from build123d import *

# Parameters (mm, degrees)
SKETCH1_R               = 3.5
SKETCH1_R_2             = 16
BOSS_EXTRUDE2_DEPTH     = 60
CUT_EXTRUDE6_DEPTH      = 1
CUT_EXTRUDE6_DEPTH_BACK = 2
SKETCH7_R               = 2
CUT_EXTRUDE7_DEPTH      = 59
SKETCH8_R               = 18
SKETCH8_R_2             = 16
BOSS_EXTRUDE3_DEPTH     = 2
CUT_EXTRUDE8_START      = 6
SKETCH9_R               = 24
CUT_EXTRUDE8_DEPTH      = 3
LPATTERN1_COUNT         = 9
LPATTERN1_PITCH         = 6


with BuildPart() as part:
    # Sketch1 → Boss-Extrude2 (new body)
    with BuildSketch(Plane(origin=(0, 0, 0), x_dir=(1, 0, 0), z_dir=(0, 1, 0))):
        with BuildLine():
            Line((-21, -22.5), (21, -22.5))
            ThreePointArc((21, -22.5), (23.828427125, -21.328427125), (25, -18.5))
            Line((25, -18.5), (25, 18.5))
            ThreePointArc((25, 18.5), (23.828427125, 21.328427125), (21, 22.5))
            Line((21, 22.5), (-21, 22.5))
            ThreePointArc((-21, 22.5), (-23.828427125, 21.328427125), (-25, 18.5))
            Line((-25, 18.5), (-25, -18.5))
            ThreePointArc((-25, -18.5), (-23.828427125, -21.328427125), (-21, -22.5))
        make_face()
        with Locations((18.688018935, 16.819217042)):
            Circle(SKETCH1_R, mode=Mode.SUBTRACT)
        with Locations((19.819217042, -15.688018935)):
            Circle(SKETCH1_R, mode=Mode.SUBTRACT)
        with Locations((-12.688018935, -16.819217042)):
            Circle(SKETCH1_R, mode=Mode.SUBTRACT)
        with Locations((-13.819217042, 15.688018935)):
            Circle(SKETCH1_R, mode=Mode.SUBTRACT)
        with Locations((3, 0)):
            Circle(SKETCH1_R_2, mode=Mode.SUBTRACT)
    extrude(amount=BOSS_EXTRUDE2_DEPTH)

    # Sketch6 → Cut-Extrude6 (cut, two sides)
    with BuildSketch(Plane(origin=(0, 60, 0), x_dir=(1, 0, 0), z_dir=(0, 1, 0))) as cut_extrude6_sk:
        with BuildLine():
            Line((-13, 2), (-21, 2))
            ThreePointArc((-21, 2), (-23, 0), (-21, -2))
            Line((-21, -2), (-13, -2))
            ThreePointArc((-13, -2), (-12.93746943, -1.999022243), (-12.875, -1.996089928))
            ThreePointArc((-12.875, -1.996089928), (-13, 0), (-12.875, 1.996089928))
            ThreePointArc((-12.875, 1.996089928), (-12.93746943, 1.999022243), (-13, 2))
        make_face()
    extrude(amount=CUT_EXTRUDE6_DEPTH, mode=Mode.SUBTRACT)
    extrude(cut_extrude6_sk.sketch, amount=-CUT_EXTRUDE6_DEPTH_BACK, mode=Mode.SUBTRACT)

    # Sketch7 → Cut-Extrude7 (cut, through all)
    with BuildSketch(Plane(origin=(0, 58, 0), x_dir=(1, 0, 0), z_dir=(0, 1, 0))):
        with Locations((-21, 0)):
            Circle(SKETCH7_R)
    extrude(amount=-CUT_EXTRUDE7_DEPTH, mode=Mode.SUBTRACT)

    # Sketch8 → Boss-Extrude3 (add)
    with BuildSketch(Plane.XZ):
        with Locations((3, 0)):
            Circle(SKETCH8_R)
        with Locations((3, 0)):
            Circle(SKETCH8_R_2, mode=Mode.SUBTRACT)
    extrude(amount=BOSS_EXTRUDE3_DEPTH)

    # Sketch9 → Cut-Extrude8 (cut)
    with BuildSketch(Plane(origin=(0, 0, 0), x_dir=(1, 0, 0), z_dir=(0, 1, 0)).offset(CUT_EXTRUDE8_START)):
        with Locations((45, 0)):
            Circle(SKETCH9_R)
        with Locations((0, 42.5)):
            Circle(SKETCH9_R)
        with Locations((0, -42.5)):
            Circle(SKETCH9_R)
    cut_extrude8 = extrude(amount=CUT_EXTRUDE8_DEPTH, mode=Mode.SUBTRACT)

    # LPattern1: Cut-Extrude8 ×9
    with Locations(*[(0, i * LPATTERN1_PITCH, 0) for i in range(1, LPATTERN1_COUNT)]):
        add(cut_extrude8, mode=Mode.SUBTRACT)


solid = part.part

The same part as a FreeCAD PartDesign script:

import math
import FreeCAD as App
import Part
import Sketcher
from FreeCAD import Vector
Q = App.Units.Quantity

doc = App.newDocument("Part")
params = doc.addObject("Spreadsheet::Sheet", "Params")
for row, (alias, value) in enumerate([
    ("sketch1_diameter", "7 mm"),
    ("sketch1_diameter2", "32 mm"),
    ("sketch1_radius", "4 mm"),
    ("sketch1_width", "42 mm"),
    ("sketch1_height", "37 mm"),
    ("pad1_length", "60 mm"),
    ("sketch2_radius", "2 mm"),
    ("sketch2_radius2", "16 mm"),
    ("sketch2_width", "8 mm"),
    ("pocket1_length", "1 mm"),
    ("pocket1_length2", "2 mm"),
    ("sketch3_diameter", "4 mm"),
    ("sketch4_diameter", "36 mm"),
    ("sketch4_diameter2", "32 mm"),
    ("pad2_length", "2 mm"),
    ("sketch5_diameter", "48 mm"),
    ("pocket3_length", "3 mm"),
    ("linearpattern_pitch", "6 mm"),
], start=1):
    params.set(f"A{row}", alias)
    params.set(f"B{row}", "=" + value)
    params.setAlias(f"B{row}", alias)

body = doc.addObject("PartDesign::Body", "Body")

# Sketch on XZ plane
sketch1 = body.newObject("Sketcher::SketchObject", "Sketch")
sketch1.AttachmentSupport = (doc.getObject("XZ_Plane"), [""])
sketch1.MapMode = "FlatFace"
sketch1.addGeometry(Part.LineSegment(Vector(-21, 22.5, 0), Vector(21, 22.5, 0)), False)
sketch1.addGeometry(Part.ArcOfCircle(Part.Circle(Vector(21, 18.5, 0), Vector(0, 0, 1), 4), math.radians(0), math.radians(90)), False)
sketch1.addGeometry(Part.LineSegment(Vector(25, 18.5, 0), Vector(25, -18.5, 0)), False)
sketch1.addGeometry(Part.ArcOfCircle(Part.Circle(Vector(21, -18.5, 0), Vector(0, 0, 1), 4), math.radians(-90), math.radians(0)), False)
sketch1.addGeometry(Part.LineSegment(Vector(21, -22.5, 0), Vector(-21, -22.5, 0)), False)
sketch1.addGeometry(Part.ArcOfCircle(Part.Circle(Vector(-21, -18.5, 0), Vector(0, 0, 1), 4), math.radians(180), math.radians(270)), False)
sketch1.addGeometry(Part.LineSegment(Vector(-25, -18.5, 0), Vector(-25, 18.5, 0)), False)
sketch1.addGeometry(Part.ArcOfCircle(Part.Circle(Vector(-21, 18.5, 0), Vector(0, 0, 1), 4), math.radians(90), math.radians(180)), False)
sketch1.addGeometry(Part.Circle(Vector(-12.688019, 16.819217, 0), Vector(0, 0, 1), 3.5), False)
sketch1.addGeometry(Part.Circle(Vector(19.819217, 15.688019, 0), Vector(0, 0, 1), 3.5), False)
sketch1.addGeometry(Part.Circle(Vector(-13.819217, -15.688019, 0), Vector(0, 0, 1), 3.5), False)
sketch1.addGeometry(Part.Circle(Vector(3, 0, 0), Vector(0, 0, 1), 16), False)
sketch1.addGeometry(Part.Circle(Vector(18.688019, -16.819217, 0), Vector(0, 0, 1), 3.5), False)
sketch1.addConstraint(Sketcher.Constraint("Tangent", 0, 2, 1, 2))
sketch1.addConstraint(Sketcher.Constraint("Tangent", 1, 1, 2, 1))
sketch1.addConstraint(Sketcher.Constraint("Tangent", 2, 2, 3, 2))
sketch1.addConstraint(Sketcher.Constraint("Tangent", 3, 1, 4, 1))
sketch1.addConstraint(Sketcher.Constraint("Tangent", 4, 2, 5, 2))
sketch1.addConstraint(Sketcher.Constraint("Tangent", 5, 1, 6, 1))
sketch1.addConstraint(Sketcher.Constraint("Tangent", 6, 2, 7, 2))
sketch1.addConstraint(Sketcher.Constraint("Tangent", 7, 1, 0, 1))
sketch1.addConstraint(Sketcher.Constraint("Horizontal", 0))
sketch1.addConstraint(Sketcher.Constraint("Vertical", 2))
sketch1.addConstraint(Sketcher.Constraint("Horizontal", 4))
sketch1.addConstraint(Sketcher.Constraint("Vertical", 6))
sketch1.addConstraint(Sketcher.Constraint("Equal", 1, 3))
sketch1.addConstraint(Sketcher.Constraint("Equal", 3, 5))
sketch1.addConstraint(Sketcher.Constraint("Equal", 5, 7))
sketch1.addConstraint(Sketcher.Constraint("Equal", 8, 9))
sketch1.addConstraint(Sketcher.Constraint("Equal", 9, 10))
sketch1.addConstraint(Sketcher.Constraint("Equal", 10, 12))
sketch1.addConstraint(Sketcher.Constraint("Symmetric", 1, 3, 5, 3, -1, 1))
sketch1.addConstraint(Sketcher.Constraint("PointOnObject", 11, 3, -1))
sketch1.addConstraint(Sketcher.Constraint("Diameter", 8, Q("7 mm")))
sketch1.addConstraint(Sketcher.Constraint("Diameter", 11, Q("32 mm")))
sketch1.addConstraint(Sketcher.Constraint("Radius", 1, Q("4 mm")))
sketch1.addConstraint(Sketcher.Constraint("DistanceX", 0, 1, 0, 2, Q("42 mm")))
sketch1.addConstraint(Sketcher.Constraint("DistanceY", 2, 2, 2, 1, Q("37 mm")))
sketch1.addConstraint(Sketcher.Constraint("DistanceX", -1, 1, 11, 3, Q("3 mm")))
sketch1.addConstraint(Sketcher.Constraint("DistanceY", 9, 3, 8, 3, Q("1.131198 mm")))
sketch1.addConstraint(Sketcher.Constraint("DistanceX", 10, 3, 8, 3, Q("1.131198 mm")))
sketch1.addConstraint(Sketcher.Constraint("DistanceX", 12, 3, 9, 3, Q("1.131198 mm")))
sketch1.addConstraint(Sketcher.Constraint("DistanceY", 12, 3, 10, 3, Q("1.131198 mm")))
sketch1.addConstraint(Sketcher.Constraint("DistanceX", 8, 3, -1, 1, Q("12.688019 mm")))
sketch1.addConstraint(Sketcher.Constraint("DistanceY", -1, 1, 9, 3, Q("15.688019 mm")))
sketch1.addConstraint(Sketcher.Constraint("DistanceY", 10, 3, -1, 1, Q("15.688019 mm")))
sketch1.addConstraint(Sketcher.Constraint("DistanceX", -1, 1, 12, 3, Q("18.688019 mm")))
sketch1.setExpression("Constraints[20]", "Params.sketch1_diameter")
sketch1.setExpression("Constraints[21]", "Params.sketch1_diameter2")
sketch1.setExpression("Constraints[22]", "Params.sketch1_radius")
sketch1.setExpression("Constraints[23]", "Params.sketch1_width")
sketch1.setExpression("Constraints[24]", "Params.sketch1_height")
pad1 = body.newObject("PartDesign::Pad", "Pad")
pad1.Profile = sketch1
pad1.setExpression("Length", "Params.pad1_length")
pad1.Reversed = True

# Sketch on XZ plane
sketch2 = body.newObject("Sketcher::SketchObject", "Sketch001")
sketch2.AttachmentSupport = (doc.getObject("XZ_Plane"), [""])
sketch2.MapMode = "FlatFace"
sketch2.AttachmentOffset = App.Placement(Vector(0, 0, -60), App.Rotation())
sketch2.addGeometry(Part.LineSegment(Vector(-13, -2, 0), Vector(-21, -2, 0)), False)
sketch2.addGeometry(Part.ArcOfCircle(Part.Circle(Vector(-21, 0, 0), Vector(0, 0, 1), 2), math.radians(90), math.radians(270)), False)
sketch2.addGeometry(Part.LineSegment(Vector(-21, 2, 0), Vector(-13, 2, 0)), False)
sketch2.addGeometry(Part.ArcOfCircle(Part.Circle(Vector(-13, 0, 0), Vector(0, 0, 1), 2), math.radians(86.416678), math.radians(90)), False)
sketch2.addGeometry(Part.ArcOfCircle(Part.Circle(Vector(3, 0, 0), Vector(0, 0, 1), 16), math.radians(172.833357), math.radians(187.166643)), False)
sketch2.addGeometry(Part.ArcOfCircle(Part.Circle(Vector(-13, 0, 0), Vector(0, 0, 1), 2), math.radians(-90), math.radians(-86.416678)), False)
sketch2.addConstraint(Sketcher.Constraint("Tangent", 0, 2, 1, 2))
sketch2.addConstraint(Sketcher.Constraint("Tangent", 1, 1, 2, 1))
sketch2.addConstraint(Sketcher.Constraint("Tangent", 2, 2, 3, 2))
sketch2.addConstraint(Sketcher.Constraint("Coincident", 3, 1, 4, 1))
sketch2.addConstraint(Sketcher.Constraint("Coincident", 4, 2, 5, 2))
sketch2.addConstraint(Sketcher.Constraint("Tangent", 5, 1, 0, 1))
sketch2.addConstraint(Sketcher.Constraint("Horizontal", 0))
sketch2.addConstraint(Sketcher.Constraint("Horizontal", 2))
sketch2.addConstraint(Sketcher.Constraint("Coincident", 5, 3, 3, 3))
sketch2.addConstraint(Sketcher.Constraint("Equal", 1, 3))
sketch2.addConstraint(Sketcher.Constraint("Symmetric", 3, 1, 4, 2, -1))
sketch2.addConstraint(Sketcher.Constraint("Radius", 1, Q("2 mm")))
sketch2.addConstraint(Sketcher.Constraint("Radius", 4, Q("16 mm")))
sketch2.addConstraint(Sketcher.Constraint("DistanceX", 0, 2, 0, 1, Q("8 mm")))
sketch2.addConstraint(Sketcher.Constraint("DistanceX", 1, 3, -1, 1, Q("21 mm")))
sketch2.addConstraint(Sketcher.Constraint("DistanceX", -1, 1, 4, 3, Q("3 mm")))
sketch2.setExpression("Constraints[11]", "Params.sketch2_radius")
sketch2.setExpression("Constraints[12]", "Params.sketch2_radius2")
sketch2.setExpression("Constraints[13]", "Params.sketch2_width")
pocket1 = body.newObject("PartDesign::Pocket", "Pocket")
pocket1.Profile = sketch2
pocket1.Type = "TwoLengths"
pocket1.setExpression("Length", "Params.pocket1_length")
pocket1.setExpression("Length2", "Params.pocket1_length2")

# Sketch on XZ plane
sketch3 = body.newObject("Sketcher::SketchObject", "Sketch002")
sketch3.AttachmentSupport = (doc.getObject("XZ_Plane"), [""])
sketch3.MapMode = "FlatFace"
sketch3.AttachmentOffset = App.Placement(Vector(0, 0, -58), App.Rotation())
sketch3.addGeometry(Part.Circle(Vector(-21, 0, 0), Vector(0, 0, 1), 2), False)
sketch3.addConstraint(Sketcher.Constraint("PointOnObject", 0, 3, -1))
sketch3.addConstraint(Sketcher.Constraint("Diameter", 0, Q("4 mm")))
sketch3.addConstraint(Sketcher.Constraint("DistanceX", 0, 3, -1, 1, Q("21 mm")))
sketch3.setExpression("Constraints[1]", "Params.sketch3_diameter")
pocket2 = body.newObject("PartDesign::Pocket", "Pocket001")
pocket2.Profile = sketch3
pocket2.Type = "ThroughAll"
pocket2.Reversed = True

# Sketch on XZ plane
sketch4 = body.newObject("Sketcher::SketchObject", "Sketch003")
sketch4.AttachmentSupport = (doc.getObject("XZ_Plane"), [""])
sketch4.MapMode = "FlatFace"
sketch4.addGeometry(Part.Circle(Vector(3, 0, 0), Vector(0, 0, 1), 18), False)
sketch4.addGeometry(Part.Circle(Vector(3, 0, 0), Vector(0, 0, 1), 16), False)
sketch4.addConstraint(Sketcher.Constraint("Coincident", 1, 3, 0, 3))
sketch4.addConstraint(Sketcher.Constraint("PointOnObject", 0, 3, -1))
sketch4.addConstraint(Sketcher.Constraint("Diameter", 0, Q("36 mm")))
sketch4.addConstraint(Sketcher.Constraint("Diameter", 1, Q("32 mm")))
sketch4.addConstraint(Sketcher.Constraint("DistanceX", -1, 1, 0, 3, Q("3 mm")))
sketch4.setExpression("Constraints[2]", "Params.sketch4_diameter")
sketch4.setExpression("Constraints[3]", "Params.sketch4_diameter2")
pad2 = body.newObject("PartDesign::Pad", "Pad001")
pad2.Profile = sketch4
pad2.setExpression("Length", "Params.pad2_length")

# Sketch on XZ plane
sketch5 = body.newObject("Sketcher::SketchObject", "Sketch004")
sketch5.AttachmentSupport = (doc.getObject("XZ_Plane"), [""])
sketch5.MapMode = "FlatFace"
sketch5.AttachmentOffset = App.Placement(Vector(0, 0, -6), App.Rotation())
sketch5.addGeometry(Part.Circle(Vector(45, 0, 0), Vector(0, 0, 1), 24), False)
sketch5.addGeometry(Part.Circle(Vector(0, -42.5, 0), Vector(0, 0, 1), 24), False)
sketch5.addGeometry(Part.Circle(Vector(0, 42.5, 0), Vector(0, 0, 1), 24), False)
sketch5.addConstraint(Sketcher.Constraint("Equal", 0, 1))
sketch5.addConstraint(Sketcher.Constraint("Equal", 1, 2))
sketch5.addConstraint(Sketcher.Constraint("Symmetric", 1, 3, 2, 3, -1, 1))
sketch5.addConstraint(Sketcher.Constraint("PointOnObject", 0, 3, -1))
sketch5.addConstraint(Sketcher.Constraint("PointOnObject", 1, 3, -2))
sketch5.addConstraint(Sketcher.Constraint("Diameter", 0, Q("48 mm")))
sketch5.addConstraint(Sketcher.Constraint("DistanceX", -1, 1, 0, 3, Q("45 mm")))
sketch5.addConstraint(Sketcher.Constraint("DistanceY", 1, 3, 2, 3, Q("85 mm")))
sketch5.setExpression("Constraints[5]", "Params.sketch5_diameter")
pocket3 = body.newObject("PartDesign::Pocket", "Pocket002")
pocket3.Profile = sketch5
pocket3.setExpression("Length", "Params.pocket3_length")
doc.recompute()

linearpattern = body.newObject("PartDesign::LinearPattern", "LinearPattern")
linearpattern.Originals = [pocket3]
linearpattern.Direction = (doc.getObject("Y_Axis"), [""])
linearpattern.Mode = "offset"
linearpattern.setExpression("Offset", "Params.linearpattern_pitch")
linearpattern.Occurrences = 9
body.Tip = linearpattern

doc.recompute()
